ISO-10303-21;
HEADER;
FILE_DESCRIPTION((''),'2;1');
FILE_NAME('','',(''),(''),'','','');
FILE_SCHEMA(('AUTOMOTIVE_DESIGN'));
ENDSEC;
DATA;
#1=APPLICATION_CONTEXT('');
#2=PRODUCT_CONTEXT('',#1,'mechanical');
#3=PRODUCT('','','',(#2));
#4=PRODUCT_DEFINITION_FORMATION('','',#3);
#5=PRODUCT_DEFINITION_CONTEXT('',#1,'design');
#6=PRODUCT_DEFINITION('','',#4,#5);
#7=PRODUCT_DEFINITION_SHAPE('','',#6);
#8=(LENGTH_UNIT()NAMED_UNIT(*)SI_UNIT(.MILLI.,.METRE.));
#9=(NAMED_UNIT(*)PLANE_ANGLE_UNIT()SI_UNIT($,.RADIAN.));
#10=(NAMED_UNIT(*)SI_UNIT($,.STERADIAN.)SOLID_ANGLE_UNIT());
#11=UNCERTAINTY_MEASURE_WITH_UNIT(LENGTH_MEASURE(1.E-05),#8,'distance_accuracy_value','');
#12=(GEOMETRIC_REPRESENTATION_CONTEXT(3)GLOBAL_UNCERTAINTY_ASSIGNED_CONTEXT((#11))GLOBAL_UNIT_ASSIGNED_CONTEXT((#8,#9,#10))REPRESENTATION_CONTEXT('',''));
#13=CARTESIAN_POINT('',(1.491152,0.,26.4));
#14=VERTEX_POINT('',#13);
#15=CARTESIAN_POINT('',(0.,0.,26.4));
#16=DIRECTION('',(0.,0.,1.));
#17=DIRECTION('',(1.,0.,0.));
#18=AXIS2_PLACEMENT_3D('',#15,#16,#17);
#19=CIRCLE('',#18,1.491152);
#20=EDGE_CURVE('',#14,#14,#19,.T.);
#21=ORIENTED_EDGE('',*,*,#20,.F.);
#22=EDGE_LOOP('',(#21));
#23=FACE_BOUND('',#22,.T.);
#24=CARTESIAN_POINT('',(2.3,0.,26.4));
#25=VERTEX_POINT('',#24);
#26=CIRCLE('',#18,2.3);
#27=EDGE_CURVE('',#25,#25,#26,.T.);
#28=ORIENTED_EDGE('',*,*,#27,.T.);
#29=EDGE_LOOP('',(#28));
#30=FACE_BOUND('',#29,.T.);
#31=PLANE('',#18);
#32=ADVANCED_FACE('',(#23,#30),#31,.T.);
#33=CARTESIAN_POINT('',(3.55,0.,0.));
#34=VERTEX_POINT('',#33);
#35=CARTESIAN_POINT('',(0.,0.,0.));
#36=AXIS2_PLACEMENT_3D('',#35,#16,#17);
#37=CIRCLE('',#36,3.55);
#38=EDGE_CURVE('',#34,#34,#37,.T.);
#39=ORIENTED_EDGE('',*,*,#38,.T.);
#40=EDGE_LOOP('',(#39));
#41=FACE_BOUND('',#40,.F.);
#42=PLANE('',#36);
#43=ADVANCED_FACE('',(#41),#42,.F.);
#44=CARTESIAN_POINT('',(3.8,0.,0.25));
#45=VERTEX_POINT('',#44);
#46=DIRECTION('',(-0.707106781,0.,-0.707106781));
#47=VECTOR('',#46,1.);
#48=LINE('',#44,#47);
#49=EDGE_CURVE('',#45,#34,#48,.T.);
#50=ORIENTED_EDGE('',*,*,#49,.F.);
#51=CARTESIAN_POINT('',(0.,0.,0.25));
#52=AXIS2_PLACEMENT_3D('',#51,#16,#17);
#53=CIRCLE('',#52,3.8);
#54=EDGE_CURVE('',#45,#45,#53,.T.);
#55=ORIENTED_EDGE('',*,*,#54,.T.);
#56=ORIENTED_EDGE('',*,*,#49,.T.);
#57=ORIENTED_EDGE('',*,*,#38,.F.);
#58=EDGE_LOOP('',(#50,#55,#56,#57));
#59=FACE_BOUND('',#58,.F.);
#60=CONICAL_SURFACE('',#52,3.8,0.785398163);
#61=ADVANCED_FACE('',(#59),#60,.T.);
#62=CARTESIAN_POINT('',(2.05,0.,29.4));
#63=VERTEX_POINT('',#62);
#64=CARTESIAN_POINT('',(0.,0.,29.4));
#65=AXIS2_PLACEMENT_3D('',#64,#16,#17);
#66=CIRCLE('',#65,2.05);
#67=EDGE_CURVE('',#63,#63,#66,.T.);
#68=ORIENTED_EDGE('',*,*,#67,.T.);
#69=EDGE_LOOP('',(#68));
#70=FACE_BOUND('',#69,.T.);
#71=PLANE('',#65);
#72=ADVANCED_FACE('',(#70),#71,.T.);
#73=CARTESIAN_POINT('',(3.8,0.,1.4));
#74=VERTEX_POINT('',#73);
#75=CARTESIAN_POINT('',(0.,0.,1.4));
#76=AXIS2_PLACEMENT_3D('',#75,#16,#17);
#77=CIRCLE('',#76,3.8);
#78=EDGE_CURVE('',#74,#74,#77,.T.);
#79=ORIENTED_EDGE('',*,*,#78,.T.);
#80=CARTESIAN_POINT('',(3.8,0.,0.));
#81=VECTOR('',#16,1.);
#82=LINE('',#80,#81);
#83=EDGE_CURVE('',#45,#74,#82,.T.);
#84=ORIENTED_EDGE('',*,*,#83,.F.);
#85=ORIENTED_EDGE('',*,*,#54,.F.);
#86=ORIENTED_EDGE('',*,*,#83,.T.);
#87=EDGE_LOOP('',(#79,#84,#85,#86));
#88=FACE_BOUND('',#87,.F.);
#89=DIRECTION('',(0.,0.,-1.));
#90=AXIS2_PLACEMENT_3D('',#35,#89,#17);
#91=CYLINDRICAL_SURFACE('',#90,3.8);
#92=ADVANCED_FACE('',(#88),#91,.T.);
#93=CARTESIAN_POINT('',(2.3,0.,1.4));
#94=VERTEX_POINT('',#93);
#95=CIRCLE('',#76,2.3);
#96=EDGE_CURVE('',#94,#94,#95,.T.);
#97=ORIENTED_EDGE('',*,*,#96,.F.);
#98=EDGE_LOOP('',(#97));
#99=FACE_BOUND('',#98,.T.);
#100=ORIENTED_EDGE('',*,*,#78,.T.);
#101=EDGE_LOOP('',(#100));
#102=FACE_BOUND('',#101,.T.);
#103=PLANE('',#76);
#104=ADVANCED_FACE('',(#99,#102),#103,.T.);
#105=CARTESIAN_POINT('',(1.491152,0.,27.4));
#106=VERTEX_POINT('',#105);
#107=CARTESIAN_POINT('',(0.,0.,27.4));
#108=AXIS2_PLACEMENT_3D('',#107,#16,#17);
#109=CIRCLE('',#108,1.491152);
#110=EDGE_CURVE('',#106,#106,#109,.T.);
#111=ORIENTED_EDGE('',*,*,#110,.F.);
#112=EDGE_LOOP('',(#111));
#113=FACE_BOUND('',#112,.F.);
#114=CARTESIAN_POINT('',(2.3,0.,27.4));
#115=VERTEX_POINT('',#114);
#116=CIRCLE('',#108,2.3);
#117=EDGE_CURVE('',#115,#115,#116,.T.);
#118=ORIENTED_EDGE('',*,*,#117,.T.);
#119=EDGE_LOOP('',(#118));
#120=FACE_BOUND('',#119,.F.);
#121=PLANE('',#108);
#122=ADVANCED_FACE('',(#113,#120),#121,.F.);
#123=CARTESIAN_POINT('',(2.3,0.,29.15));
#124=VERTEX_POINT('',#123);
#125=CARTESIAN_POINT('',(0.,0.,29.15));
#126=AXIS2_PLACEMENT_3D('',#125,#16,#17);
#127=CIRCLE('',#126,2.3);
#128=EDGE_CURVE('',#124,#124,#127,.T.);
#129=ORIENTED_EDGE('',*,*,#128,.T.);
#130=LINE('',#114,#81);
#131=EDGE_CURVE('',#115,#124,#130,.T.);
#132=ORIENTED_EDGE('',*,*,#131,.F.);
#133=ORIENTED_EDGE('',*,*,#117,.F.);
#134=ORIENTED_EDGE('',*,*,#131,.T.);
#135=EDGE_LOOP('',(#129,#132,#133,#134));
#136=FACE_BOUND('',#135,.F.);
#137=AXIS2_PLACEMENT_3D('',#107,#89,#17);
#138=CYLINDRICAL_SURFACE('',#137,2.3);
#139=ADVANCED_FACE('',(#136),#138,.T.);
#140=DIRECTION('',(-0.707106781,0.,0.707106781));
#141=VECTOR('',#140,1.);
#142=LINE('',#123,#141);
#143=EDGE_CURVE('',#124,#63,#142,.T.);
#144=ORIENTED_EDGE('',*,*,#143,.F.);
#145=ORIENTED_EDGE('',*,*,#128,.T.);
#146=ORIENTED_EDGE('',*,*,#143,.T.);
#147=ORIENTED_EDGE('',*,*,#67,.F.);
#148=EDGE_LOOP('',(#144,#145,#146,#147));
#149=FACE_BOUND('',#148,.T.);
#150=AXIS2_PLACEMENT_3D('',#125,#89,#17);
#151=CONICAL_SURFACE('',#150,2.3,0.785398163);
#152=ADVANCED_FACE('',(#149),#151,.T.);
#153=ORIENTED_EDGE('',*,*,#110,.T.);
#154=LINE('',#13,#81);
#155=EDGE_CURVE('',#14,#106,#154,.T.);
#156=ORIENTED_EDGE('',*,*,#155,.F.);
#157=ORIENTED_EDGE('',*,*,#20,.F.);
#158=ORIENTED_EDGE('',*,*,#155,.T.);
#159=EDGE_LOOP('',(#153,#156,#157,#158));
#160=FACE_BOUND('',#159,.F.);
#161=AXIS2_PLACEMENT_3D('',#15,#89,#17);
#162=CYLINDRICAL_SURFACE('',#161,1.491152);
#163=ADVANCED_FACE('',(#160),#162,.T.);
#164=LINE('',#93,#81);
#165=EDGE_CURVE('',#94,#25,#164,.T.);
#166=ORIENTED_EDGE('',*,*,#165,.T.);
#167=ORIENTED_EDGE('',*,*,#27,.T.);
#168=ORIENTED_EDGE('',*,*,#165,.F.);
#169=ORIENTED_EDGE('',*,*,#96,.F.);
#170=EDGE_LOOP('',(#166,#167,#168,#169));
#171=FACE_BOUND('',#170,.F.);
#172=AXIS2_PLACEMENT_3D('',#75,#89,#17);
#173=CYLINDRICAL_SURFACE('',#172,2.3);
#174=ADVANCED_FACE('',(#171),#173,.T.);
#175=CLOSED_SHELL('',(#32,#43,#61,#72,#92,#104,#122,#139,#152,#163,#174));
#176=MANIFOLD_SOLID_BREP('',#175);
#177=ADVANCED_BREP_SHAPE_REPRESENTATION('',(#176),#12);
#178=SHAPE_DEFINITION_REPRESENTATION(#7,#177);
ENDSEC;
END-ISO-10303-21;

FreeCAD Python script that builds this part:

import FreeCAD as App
import Part
import Sketcher


def edges_at(feature, points):
    """Names of the edges that pass closest to the given points."""
    edges = feature.Shape.Edges
    near = lambda p: min(range(len(edges)), key=lambda i: edges[i].distToShape(Part.Vertex(*p))[0])
    return sorted({f"Edge{near(p) + 1}" for p in points})

doc = App.newDocument("Part")
body = doc.addObject("PartDesign::Body", "Body")

# Sketch on XY plane
sketch1 = doc.addObject("Sketcher::SketchObject", "Sketch")
body.addObject(sketch1)
sketch1.AttachmentSupport = (doc.XY_Plane, [""])
sketch1.MapMode = "FlatFace"
sketch1.addGeometry(Part.Circle(App.Vector(0, 0, 0), App.Vector(0, 0, 1), 3.8), False)
sketch1.addConstraint([
    Sketcher.Constraint("Coincident", 0, 3, -1, 1),
    Sketcher.Constraint("Diameter", 0, 7.6),
])
pad1 = doc.addObject("PartDesign::Pad", "Pad")
body.addObject(pad1)
pad1.Profile = sketch1
pad1.Length = 1.4

# Sketch on XY plane
sketch2 = doc.addObject("Sketcher::SketchObject", "Sketch001")
body.addObject(sketch2)
sketch2.AttachmentSupport = (doc.XY_Plane, [""])
sketch2.MapMode = "FlatFace"
sketch2.AttachmentOffset = App.Placement(App.Vector(0, 0, 1.4), App.Rotation())
sketch2.addGeometry(Part.Circle(App.Vector(0, 0, 0), App.Vector(0, 0, 1), 2.3), False)
sketch2.addConstraint([
    Sketcher.Constraint("Coincident", 0, 3, -1, 1),
    Sketcher.Constraint("Diameter", 0, 4.6),
])
pad2 = doc.addObject("PartDesign::Pad", "Pad001")
body.addObject(pad2)
pad2.Profile = sketch2
pad2.Length = 25

# Sketch on XY plane
sketch3 = doc.addObject("Sketcher::SketchObject", "Sketch002")
body.addObject(sketch3)
sketch3.AttachmentSupport = (doc.XY_Plane, [""])
sketch3.MapMode = "FlatFace"
sketch3.AttachmentOffset = App.Placement(App.Vector(0, 0, 26.4), App.Rotation())
sketch3.addGeometry(Part.Circle(App.Vector(0, 0, 0), App.Vector(0, 0, 1), 1.5), False)
sketch3.addConstraint([
    Sketcher.Constraint("Coincident", 0, 3, -1, 1),
    Sketcher.Constraint("Diameter", 0, 2.982304),
])
pad3 = doc.addObject("PartDesign::Pad", "Pad002")
body.addObject(pad3)
pad3.Profile = sketch3
pad3.Length = 1

# Sketch on XY plane
sketch4 = doc.addObject("Sketcher::SketchObject", "Sketch003")
body.addObject(sketch4)
sketch4.AttachmentSupport = (doc.XY_Plane, [""])
sketch4.MapMode = "FlatFace"
sketch4.AttachmentOffset = App.Placement(App.Vector(0, 0, 27.4), App.Rotation())
sketch4.addGeometry(Part.Circle(App.Vector(0, 0, 0), App.Vector(0, 0, 1), 2.3), False)
sketch4.addConstraint([
    Sketcher.Constraint("Coincident", 0, 3, -1, 1),
    Sketcher.Constraint("Diameter", 0, 4.6),
])
pad4 = doc.addObject("PartDesign::Pad", "Pad003")
body.addObject(pad4)
pad4.Profile = sketch4
pad4.Length = 2
doc.recompute()

chamfer = doc.addObject("PartDesign::Chamfer", "Chamfer")
body.addObject(chamfer)
chamfer.Base = (pad4, edges_at(pad4, [(-2.3, 0, 29.4), (-3.8, 0, 0)]))
chamfer.Size = 0.25

doc.recompute()
